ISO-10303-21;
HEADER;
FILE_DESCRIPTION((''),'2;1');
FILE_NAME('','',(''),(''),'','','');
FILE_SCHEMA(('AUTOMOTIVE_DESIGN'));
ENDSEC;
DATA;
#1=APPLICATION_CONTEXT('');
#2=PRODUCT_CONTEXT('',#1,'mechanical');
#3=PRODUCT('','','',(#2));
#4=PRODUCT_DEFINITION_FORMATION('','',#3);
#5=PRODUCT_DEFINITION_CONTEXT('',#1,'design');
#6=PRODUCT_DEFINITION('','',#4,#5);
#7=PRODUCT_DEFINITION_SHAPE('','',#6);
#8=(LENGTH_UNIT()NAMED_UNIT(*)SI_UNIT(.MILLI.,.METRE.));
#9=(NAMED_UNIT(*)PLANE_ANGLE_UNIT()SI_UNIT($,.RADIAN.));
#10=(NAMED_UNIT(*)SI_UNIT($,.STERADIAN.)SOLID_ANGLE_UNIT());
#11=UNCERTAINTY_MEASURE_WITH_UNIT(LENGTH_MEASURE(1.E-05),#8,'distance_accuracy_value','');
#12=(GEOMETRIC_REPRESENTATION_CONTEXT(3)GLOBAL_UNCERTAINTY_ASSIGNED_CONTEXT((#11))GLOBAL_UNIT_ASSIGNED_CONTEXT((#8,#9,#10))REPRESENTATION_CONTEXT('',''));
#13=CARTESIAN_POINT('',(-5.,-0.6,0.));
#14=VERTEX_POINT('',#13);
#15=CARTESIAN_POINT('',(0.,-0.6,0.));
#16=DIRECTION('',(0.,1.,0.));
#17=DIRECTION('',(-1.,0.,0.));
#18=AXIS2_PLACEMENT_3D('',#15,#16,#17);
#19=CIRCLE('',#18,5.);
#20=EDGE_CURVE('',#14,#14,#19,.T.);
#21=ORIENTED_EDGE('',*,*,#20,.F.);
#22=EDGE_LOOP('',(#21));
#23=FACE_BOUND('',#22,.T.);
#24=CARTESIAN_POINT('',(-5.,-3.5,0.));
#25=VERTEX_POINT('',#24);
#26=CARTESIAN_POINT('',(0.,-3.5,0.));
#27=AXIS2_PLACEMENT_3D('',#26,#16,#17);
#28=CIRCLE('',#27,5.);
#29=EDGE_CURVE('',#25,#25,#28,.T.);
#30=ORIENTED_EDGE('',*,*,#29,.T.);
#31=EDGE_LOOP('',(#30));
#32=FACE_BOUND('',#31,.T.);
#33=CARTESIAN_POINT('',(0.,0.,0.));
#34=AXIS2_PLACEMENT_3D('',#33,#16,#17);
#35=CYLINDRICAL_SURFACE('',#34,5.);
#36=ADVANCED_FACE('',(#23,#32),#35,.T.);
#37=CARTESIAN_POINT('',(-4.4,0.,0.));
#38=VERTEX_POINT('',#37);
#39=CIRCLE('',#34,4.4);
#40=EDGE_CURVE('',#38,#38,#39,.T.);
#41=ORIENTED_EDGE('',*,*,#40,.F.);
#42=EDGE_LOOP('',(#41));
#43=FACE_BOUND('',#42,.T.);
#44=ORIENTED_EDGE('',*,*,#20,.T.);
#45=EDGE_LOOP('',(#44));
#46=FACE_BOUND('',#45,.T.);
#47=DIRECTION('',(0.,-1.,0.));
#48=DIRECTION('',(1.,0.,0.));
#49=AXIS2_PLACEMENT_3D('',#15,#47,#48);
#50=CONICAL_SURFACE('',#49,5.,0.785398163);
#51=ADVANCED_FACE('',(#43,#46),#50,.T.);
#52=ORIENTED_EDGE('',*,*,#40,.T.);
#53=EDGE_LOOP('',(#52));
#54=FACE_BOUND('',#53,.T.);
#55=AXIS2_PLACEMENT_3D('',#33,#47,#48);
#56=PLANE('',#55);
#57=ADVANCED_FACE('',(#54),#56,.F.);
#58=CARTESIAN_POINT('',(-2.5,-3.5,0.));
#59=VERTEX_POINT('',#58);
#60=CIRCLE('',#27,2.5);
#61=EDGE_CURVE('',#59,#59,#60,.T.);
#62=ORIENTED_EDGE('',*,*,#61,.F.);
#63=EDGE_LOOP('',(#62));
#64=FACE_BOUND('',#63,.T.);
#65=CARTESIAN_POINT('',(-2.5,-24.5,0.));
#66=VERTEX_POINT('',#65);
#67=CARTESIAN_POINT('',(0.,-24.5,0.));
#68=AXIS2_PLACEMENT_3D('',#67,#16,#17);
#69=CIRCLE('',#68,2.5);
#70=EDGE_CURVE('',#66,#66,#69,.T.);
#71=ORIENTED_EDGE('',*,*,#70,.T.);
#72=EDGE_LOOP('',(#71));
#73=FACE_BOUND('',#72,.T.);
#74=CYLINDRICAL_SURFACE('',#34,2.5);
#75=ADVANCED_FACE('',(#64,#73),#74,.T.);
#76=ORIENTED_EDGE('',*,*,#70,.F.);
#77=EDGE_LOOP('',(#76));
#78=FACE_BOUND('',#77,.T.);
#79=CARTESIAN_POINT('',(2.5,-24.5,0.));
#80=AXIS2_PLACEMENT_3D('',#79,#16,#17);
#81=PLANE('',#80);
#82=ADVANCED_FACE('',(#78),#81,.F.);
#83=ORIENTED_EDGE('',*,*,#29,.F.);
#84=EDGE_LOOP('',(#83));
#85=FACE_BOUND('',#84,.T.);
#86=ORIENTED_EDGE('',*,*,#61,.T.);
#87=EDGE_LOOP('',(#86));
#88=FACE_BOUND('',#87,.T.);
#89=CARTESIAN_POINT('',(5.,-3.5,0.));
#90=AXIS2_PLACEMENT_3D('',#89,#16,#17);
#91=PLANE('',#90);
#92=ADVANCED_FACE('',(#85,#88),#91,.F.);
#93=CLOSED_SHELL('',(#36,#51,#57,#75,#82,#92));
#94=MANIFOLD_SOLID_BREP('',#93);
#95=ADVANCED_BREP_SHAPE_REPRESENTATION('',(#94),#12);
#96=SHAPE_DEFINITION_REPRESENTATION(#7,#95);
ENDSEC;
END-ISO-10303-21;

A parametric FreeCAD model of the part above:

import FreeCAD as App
import Part
import Sketcher
from FreeCAD import Vector
Q = App.Units.Quantity


def add_polygon(sketch, points):
    """Adds a closed chain of lines whose ends are joined by coincident constraints."""
    first, n = sketch.GeometryCount, len(points)
    for a, b in zip(points, points[1:] + points[:1]):
        sketch.addGeometry(Part.LineSegment(App.Vector(*a, 0), App.Vector(*b, 0)), False)
    for i in range(n):
        sketch.addConstraint(Sketcher.Constraint("Coincident", first + i, 2, first + (i + 1) % n, 1))

doc = App.newDocument("Part")
body = doc.addObject("PartDesign::Body", "Body")

# Sketch on XY plane
sketch1 = doc.addObject("Sketcher::SketchObject", "Sketch")
body.addObject(sketch1)
sketch1.AttachmentSupport = (doc.XY_Plane, [""])
sketch1.MapMode = "FlatFace"
add_polygon(sketch1, [(4.4, 0), (0, 0), (0, -24.5), (2.5, -24.5), (2.5, -3.5), (5, -3.5), (5, -0.6)])  # lines 0-6
sketch1.addConstraint([
    Sketcher.Constraint("Horizontal", 0),
    Sketcher.Constraint("Vertical", 1),
    Sketcher.Constraint("Horizontal", 2),
    Sketcher.Constraint("Vertical", 3),
    Sketcher.Constraint("Horizontal", 4),
    Sketcher.Constraint("Vertical", 5),
    Sketcher.Constraint("Coincident", 0, 2, -1, 1),
    Sketcher.Constraint("Equal", 2, 4),
    Sketcher.Constraint("DistanceY", 3, 1, 3, 2, Q("21 mm")),
    Sketcher.Constraint("Angle", 6, Q("135 deg")),
    Sketcher.Constraint("DistanceX", 0, 2, 0, 1, Q("4.4 mm")),
    Sketcher.Constraint("DistanceX", 2, 1, 2, 2, Q("2.5 mm")),
    Sketcher.Constraint("DistanceY", 1, 2, 1, 1, Q("24.5 mm")),
])
revolution = doc.addObject("PartDesign::Revolution", "Revolution")
body.addObject(revolution)
revolution.Profile = sketch1
revolution.ReferenceAxis = (sketch1, ["V_Axis"])
revolution.Angle = 360

doc.recompute()
